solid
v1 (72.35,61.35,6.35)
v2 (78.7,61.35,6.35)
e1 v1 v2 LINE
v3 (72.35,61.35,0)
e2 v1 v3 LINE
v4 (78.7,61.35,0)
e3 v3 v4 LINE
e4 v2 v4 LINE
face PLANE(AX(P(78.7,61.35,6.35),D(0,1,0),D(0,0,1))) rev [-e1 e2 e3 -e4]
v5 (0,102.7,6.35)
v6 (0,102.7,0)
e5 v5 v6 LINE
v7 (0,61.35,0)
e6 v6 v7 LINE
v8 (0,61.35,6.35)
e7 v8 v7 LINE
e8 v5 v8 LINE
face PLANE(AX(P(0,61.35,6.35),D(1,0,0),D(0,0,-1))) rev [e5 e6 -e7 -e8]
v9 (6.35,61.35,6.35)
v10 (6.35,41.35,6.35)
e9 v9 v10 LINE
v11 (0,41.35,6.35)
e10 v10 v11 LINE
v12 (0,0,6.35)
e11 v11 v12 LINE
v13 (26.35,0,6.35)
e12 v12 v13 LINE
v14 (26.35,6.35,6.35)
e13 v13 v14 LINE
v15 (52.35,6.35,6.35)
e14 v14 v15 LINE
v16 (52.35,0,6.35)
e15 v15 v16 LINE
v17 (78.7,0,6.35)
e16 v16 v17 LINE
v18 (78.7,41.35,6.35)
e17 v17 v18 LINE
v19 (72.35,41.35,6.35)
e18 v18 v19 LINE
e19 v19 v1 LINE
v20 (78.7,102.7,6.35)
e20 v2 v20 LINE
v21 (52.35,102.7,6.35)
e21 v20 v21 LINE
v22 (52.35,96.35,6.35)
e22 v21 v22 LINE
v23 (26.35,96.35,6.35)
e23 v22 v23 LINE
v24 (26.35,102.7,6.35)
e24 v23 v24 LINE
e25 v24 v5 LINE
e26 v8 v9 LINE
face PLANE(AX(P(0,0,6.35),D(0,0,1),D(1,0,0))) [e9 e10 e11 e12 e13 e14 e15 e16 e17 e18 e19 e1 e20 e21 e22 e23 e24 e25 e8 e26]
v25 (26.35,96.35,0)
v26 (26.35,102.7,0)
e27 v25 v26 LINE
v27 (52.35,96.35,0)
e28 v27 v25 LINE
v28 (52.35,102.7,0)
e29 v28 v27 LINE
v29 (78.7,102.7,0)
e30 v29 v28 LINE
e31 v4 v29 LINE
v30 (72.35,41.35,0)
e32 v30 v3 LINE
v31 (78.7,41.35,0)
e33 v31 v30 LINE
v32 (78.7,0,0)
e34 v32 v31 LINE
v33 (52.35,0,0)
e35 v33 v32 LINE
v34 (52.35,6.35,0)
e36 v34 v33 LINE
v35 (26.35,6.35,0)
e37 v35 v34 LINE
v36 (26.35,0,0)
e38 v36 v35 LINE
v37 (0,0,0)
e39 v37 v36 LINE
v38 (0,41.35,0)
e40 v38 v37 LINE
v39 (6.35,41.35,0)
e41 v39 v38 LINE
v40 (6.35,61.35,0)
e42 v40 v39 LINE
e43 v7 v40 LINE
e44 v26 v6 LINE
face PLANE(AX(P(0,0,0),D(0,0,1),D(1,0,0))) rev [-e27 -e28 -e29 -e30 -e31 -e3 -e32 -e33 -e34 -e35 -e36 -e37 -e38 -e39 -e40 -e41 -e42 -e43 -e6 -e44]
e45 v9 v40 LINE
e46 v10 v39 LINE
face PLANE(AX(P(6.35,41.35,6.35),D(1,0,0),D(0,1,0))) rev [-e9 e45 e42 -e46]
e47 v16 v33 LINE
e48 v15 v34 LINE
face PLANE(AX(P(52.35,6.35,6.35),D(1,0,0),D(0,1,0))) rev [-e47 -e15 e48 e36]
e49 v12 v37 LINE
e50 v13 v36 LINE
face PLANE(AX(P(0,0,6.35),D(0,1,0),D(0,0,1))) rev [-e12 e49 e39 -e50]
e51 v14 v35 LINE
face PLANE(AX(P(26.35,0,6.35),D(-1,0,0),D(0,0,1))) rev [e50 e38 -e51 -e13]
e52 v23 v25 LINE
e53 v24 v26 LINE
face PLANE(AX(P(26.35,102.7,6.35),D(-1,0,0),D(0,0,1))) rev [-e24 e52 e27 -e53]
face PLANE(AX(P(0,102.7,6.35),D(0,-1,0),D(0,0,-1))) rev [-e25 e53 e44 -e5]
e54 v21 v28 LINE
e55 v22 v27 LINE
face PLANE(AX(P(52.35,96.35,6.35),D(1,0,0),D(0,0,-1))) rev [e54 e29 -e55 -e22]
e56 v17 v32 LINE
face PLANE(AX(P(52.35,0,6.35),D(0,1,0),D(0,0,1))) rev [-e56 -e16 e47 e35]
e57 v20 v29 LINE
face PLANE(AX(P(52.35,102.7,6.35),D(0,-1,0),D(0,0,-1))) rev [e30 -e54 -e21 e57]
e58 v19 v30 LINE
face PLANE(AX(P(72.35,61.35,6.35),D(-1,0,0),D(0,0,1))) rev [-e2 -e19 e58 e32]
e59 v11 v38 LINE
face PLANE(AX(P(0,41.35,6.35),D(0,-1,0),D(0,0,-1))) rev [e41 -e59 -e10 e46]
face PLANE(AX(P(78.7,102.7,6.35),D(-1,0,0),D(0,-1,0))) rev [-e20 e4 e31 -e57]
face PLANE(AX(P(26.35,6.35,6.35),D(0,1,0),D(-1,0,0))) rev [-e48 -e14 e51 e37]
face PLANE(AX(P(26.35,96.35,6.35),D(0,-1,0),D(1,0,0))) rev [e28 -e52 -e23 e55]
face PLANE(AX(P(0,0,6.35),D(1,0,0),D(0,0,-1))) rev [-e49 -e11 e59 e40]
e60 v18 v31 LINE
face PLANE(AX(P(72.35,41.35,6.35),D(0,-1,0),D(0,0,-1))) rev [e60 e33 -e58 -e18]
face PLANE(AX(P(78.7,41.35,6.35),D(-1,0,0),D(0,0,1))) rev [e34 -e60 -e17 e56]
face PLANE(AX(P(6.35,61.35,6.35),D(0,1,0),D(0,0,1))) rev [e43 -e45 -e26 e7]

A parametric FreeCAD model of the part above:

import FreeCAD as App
import Part
import Sketcher
Q = App.Units.Quantity


def add_polygon(sketch, points):
    """Adds a closed chain of lines whose ends are joined by coincident constraints."""
    first, n = sketch.GeometryCount, len(points)
    for a, b in zip(points, points[1:] + points[:1]):
        sketch.addGeometry(Part.LineSegment(App.Vector(*a, 0), App.Vector(*b, 0)), False)
    for i in range(n):
        sketch.addConstraint(Sketcher.Constraint("Coincident", first + i, 2, first + (i + 1) % n, 1))

doc = App.newDocument("Part")
body = doc.addObject("PartDesign::Body", "Body")

sketch1 = body.newObject("Sketcher::SketchObject", "Sketch")
sketch1.AttachmentSupport = (doc.getObject("XY_Plane"), [""])
sketch1.MapMode = "FlatFace"
add_polygon(sketch1, [(0, 41), (0, 0), (26, 0), (26, 6), (52, 6), (52, 0), (79, 0), (79, 41), (72, 41), (72, 61), (79, 61), (79, 103), (52, 103), (52, 96), (26, 96), (26, 103), (0, 103), (0, 61), (6, 61), (6, 41)])
sketch1.addConstraint(Sketcher.Constraint("Vertical", 0))
sketch1.addConstraint(Sketcher.Constraint("Horizontal", 1))
sketch1.addConstraint(Sketcher.Constraint("Vertical", 2))
sketch1.addConstraint(Sketcher.Constraint("Horizontal", 3))
sketch1.addConstraint(Sketcher.Constraint("Vertical", 4))
sketch1.addConstraint(Sketcher.Constraint("Horizontal", 5))
sketch1.addConstraint(Sketcher.Constraint("Vertical", 6))
sketch1.addConstraint(Sketcher.Constraint("Horizontal", 7))
sketch1.addConstraint(Sketcher.Constraint("Vertical", 8))
sketch1.addConstraint(Sketcher.Constraint("Horizontal", 9))
sketch1.addConstraint(Sketcher.Constraint("Vertical", 10))
sketch1.addConstraint(Sketcher.Constraint("Horizontal", 11))
sketch1.addConstraint(Sketcher.Constraint("Vertical", 12))
sketch1.addConstraint(Sketcher.Constraint("Horizontal", 13))
sketch1.addConstraint(Sketcher.Constraint("Vertical", 14))
sketch1.addConstraint(Sketcher.Constraint("Horizontal", 15))
sketch1.addConstraint(Sketcher.Constraint("Vertical", 16))
sketch1.addConstraint(Sketcher.Constraint("Horizontal", 17))
sketch1.addConstraint(Sketcher.Constraint("Vertical", 18))
sketch1.addConstraint(Sketcher.Constraint("Horizontal", 19))
sketch1.addConstraint(Sketcher.Constraint("Coincident", 0, 2, -1, 1))
sketch1.addConstraint(Sketcher.Constraint("PointOnObject", 4, 2, -1))
sketch1.addConstraint(Sketcher.Constraint("PointOnObject", 15, 2, -2))
sketch1.addConstraint(Sketcher.Constraint("Horizontal", 11, 2, 14, 2))
sketch1.addConstraint(Sketcher.Constraint("Horizontal", 9, 2, 16, 2))
sketch1.addConstraint(Sketcher.Constraint("Horizontal", 7, 2, 18, 2))
sketch1.addConstraint(Sketcher.Constraint("Vertical", 6, 2, 9, 2))
sketch1.addConstraint(Sketcher.Constraint("Vertical", 4, 2, 11, 2))
sketch1.addConstraint(Sketcher.Constraint("Vertical", 2, 2, 13, 2))
sketch1.addConstraint(Sketcher.Constraint("Equal", 1, 5))
sketch1.addConstraint(Sketcher.Constraint("Equal", 9, 17))
sketch1.addConstraint(Sketcher.Constraint("Equal", 19, 2))
sketch1.addConstraint(Sketcher.Constraint("Equal", 6, 10))
sketch1.addConstraint(Sketcher.Constraint("Equal", 4, 12))
sketch1.addConstraint(Sketcher.Constraint("DistanceX", 3, 1, 3, 2, Q("26 mm")))
sketch1.addConstraint(Sketcher.Constraint("DistanceY", 8, 1, 8, 2, Q("20 mm")))
sketch1.addConstraint(Sketcher.Constraint("DistanceY", 3, 2, 6, 2, Q("35 mm")))
sketch1.addConstraint(Sketcher.Constraint("DistanceX", 3, 2, 7, 2, Q("20 mm")))
sketch1.addConstraint(Sketcher.Constraint("DistanceX", 1, 1, 1, 2, Q("26.35 mm")))
pad1 = body.newObject("PartDesign::Pad", "Pad")
pad1.Profile = sketch1
pad1.Length = 6.35

doc.recompute()
